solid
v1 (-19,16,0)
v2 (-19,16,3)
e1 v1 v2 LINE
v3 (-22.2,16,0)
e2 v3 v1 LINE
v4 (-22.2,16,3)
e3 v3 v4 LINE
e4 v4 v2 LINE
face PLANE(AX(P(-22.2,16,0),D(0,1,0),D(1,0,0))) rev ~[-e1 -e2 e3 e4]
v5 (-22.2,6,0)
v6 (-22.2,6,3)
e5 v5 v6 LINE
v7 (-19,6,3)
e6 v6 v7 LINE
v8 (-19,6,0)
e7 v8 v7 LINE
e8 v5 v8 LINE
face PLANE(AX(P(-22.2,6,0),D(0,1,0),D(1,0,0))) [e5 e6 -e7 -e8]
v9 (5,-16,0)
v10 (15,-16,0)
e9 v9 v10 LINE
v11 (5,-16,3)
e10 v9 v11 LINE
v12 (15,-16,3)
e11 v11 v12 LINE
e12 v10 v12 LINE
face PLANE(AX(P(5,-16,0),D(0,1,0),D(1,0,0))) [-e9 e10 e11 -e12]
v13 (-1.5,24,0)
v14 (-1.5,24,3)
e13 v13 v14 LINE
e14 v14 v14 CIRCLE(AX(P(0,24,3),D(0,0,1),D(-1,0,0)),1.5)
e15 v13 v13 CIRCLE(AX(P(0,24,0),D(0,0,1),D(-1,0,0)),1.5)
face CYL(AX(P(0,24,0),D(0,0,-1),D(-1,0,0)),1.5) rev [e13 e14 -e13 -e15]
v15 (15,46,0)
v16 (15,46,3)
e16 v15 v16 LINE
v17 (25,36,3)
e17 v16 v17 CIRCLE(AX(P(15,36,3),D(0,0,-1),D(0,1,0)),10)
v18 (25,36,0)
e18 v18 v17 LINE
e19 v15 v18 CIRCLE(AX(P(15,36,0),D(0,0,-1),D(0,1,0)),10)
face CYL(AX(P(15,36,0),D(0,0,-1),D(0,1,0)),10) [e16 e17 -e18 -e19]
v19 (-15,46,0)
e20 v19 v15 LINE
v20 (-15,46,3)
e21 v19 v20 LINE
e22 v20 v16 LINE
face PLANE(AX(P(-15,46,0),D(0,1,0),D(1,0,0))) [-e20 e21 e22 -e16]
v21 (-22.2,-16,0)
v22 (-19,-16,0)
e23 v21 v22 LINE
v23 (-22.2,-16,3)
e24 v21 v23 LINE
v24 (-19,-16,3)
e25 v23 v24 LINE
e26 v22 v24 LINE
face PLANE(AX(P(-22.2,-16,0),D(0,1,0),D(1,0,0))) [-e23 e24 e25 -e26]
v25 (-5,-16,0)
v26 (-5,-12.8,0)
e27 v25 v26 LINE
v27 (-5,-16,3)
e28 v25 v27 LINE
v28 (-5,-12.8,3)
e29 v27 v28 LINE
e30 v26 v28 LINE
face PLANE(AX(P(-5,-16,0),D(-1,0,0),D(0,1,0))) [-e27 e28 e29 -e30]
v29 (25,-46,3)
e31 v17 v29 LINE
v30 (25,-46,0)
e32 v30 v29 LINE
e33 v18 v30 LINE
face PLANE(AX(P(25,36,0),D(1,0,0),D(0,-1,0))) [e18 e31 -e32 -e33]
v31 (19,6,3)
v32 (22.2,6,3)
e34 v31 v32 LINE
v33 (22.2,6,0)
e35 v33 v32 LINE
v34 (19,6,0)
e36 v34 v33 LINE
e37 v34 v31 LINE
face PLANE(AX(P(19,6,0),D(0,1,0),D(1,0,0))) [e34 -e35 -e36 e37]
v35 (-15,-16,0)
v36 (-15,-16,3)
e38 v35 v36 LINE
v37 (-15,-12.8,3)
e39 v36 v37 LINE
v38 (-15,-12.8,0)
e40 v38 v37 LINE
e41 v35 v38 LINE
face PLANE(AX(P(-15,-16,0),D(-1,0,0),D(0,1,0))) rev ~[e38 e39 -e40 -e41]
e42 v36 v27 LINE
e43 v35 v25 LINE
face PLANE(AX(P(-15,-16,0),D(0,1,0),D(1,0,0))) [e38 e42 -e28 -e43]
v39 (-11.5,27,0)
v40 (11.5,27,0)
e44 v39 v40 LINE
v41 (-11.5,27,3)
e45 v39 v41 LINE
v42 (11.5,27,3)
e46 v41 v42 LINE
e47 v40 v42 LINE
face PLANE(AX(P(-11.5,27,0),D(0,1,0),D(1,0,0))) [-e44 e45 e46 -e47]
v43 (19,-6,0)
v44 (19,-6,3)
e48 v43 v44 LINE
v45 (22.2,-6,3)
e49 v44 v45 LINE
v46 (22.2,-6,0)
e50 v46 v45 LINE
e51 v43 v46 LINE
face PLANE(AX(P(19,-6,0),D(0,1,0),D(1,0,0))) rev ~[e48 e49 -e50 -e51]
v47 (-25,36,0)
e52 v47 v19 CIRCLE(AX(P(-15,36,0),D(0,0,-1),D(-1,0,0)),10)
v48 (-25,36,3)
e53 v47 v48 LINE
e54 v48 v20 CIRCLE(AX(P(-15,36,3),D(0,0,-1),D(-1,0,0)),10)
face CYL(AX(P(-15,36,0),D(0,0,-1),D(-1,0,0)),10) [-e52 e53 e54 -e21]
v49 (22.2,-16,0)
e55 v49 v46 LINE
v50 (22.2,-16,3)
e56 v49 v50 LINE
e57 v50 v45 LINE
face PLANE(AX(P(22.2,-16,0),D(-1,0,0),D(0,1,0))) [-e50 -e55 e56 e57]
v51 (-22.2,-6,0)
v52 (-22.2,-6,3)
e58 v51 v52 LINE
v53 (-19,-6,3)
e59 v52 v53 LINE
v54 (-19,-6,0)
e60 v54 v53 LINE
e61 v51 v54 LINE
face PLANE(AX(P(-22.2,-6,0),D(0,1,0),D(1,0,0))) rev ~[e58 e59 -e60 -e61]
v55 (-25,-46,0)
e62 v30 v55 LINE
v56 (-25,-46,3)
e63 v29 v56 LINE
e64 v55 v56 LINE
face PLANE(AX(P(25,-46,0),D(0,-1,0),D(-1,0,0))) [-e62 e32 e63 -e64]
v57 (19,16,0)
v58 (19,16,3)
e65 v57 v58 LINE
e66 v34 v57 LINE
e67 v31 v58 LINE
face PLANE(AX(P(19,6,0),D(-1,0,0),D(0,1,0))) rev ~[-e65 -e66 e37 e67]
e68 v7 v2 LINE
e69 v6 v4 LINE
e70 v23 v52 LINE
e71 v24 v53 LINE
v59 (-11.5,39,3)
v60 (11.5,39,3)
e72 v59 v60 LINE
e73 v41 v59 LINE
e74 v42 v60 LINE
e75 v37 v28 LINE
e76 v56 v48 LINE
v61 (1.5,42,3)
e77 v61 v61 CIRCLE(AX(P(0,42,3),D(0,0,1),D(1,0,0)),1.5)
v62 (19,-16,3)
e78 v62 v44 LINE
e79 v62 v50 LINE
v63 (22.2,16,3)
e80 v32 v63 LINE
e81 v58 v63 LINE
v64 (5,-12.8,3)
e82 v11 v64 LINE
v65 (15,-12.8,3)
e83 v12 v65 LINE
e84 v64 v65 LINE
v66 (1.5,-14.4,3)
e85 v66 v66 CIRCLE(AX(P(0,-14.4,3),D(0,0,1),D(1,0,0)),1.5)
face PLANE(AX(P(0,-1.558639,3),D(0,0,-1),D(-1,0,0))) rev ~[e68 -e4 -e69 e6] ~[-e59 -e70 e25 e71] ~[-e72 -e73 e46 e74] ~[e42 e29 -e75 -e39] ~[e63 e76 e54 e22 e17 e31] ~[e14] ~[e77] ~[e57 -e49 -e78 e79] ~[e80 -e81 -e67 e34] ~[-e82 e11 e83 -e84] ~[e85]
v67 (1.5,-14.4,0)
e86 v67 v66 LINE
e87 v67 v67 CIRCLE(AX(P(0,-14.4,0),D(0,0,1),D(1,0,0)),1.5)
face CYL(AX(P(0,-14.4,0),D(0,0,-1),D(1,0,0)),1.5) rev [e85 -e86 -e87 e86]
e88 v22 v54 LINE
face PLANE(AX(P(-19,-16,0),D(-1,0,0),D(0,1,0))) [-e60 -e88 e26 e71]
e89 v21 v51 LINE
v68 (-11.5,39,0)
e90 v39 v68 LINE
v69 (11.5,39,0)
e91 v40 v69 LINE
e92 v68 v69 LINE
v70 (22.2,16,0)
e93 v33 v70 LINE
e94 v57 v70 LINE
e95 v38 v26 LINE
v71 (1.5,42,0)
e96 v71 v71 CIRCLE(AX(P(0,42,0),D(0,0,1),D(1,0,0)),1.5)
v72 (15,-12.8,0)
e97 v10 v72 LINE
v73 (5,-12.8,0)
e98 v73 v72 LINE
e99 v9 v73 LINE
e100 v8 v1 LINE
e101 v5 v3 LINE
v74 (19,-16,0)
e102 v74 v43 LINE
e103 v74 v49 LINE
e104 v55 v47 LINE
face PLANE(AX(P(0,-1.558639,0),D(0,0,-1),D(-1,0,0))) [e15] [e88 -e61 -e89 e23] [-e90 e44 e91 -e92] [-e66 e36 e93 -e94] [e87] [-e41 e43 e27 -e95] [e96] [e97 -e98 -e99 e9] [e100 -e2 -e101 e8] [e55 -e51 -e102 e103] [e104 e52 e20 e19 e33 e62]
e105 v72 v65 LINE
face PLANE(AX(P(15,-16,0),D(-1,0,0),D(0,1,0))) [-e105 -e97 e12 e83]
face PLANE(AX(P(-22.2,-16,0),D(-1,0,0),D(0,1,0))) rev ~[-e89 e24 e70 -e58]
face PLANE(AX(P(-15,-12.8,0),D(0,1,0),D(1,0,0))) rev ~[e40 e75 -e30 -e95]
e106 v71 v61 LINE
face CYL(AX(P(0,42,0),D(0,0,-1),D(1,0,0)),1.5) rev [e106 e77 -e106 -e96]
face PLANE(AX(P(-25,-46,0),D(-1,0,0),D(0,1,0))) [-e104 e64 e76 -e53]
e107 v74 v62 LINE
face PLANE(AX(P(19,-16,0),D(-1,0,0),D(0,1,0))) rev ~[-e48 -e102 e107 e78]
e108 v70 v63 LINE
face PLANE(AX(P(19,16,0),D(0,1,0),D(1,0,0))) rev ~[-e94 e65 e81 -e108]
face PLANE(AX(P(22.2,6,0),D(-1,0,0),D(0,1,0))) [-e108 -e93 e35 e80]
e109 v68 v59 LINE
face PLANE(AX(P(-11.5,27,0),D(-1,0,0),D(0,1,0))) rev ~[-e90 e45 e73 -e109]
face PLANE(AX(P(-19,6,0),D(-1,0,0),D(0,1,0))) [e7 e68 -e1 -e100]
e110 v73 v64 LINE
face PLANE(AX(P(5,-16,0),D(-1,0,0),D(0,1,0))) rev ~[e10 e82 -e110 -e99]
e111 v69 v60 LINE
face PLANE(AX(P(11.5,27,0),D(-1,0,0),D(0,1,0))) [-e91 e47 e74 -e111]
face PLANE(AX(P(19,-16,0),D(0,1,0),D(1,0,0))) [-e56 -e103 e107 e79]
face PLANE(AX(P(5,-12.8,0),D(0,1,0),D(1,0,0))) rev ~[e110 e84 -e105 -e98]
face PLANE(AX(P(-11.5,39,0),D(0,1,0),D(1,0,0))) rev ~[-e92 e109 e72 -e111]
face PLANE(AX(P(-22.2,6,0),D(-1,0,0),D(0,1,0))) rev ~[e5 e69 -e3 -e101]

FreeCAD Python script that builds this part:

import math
import FreeCAD as App
import Part
import Sketcher
from FreeCAD import Vector
Q = App.Units.Quantity


def add_polygon(sketch, points):
    """Adds a closed chain of lines whose ends are joined by coincident constraints."""
    first, n = sketch.GeometryCount, len(points)
    for a, b in zip(points, points[1:] + points[:1]):
        sketch.addGeometry(Part.LineSegment(App.Vector(*a, 0), App.Vector(*b, 0)), False)
    for i in range(n):
        sketch.addConstraint(Sketcher.Constraint("Coincident", first + i, 2, first + (i + 1) % n, 1))

doc = App.newDocument("Part")
params = doc.addObject("Spreadsheet::Sheet", "Params")
for row, (alias, value) in enumerate([
    ("sketch1_diameter", "3 mm"),
    ("sketch1_radius", "10 mm"),
    ("sketch1_width", "50 mm"),
    ("sketch1_width2", "10 mm"),
    ("sketch1_width3", "23 mm"),
    ("pad1_length", "3 mm"),
], start=1):
    params.set(f"A{row}", alias)
    params.set(f"B{row}", "=" + value)
    params.setAlias(f"B{row}", alias)

body = doc.addObject("PartDesign::Body", "Body")

sketch1 = doc.addObject("Sketcher::SketchObject", "Sketch")
body.addObject(sketch1)
sketch1.AttachmentSupport = (doc.XY_Plane, [""])
sketch1.MapMode = "FlatFace"
sketch1.addGeometry(Part.LineSegment(Vector(-25, -46, 0), Vector(25, -46, 0)), False)
sketch1.addGeometry(Part.LineSegment(Vector(25, -46, 0), Vector(25, 36, 0)), False)
sketch1.addGeometry(Part.ArcOfCircle(Part.Circle(Vector(15, 36, 0), Vector(0, 0, 1), 10), math.radians(0), math.radians(90)), False)
sketch1.addGeometry(Part.LineSegment(Vector(15, 46, 0), Vector(-15, 46, 0)), False)
sketch1.addGeometry(Part.ArcOfCircle(Part.Circle(Vector(-15, 36, 0), Vector(0, 0, 1), 10), math.radians(90), math.radians(180)), False)
sketch1.addGeometry(Part.LineSegment(Vector(-25, 36, 0), Vector(-25, -46, 0)), False)
add_polygon(sketch1, [(19, -16), (19, -6), (22.2, -6), (22.2, -16)])
add_polygon(sketch1, [(5, -16), (5, -12.8), (15, -12.8), (15, -16)])
sketch1.addGeometry(Part.Circle(Vector(0, -14.4, 0), Vector(0, 0, 1), 1.5), False)
add_polygon(sketch1, [(19, 6), (19, 16), (22.2, 16), (22.2, 6)])
add_polygon(sketch1, [(-15, -16), (-15, -12.8), (-5, -12.8), (-5, -16)])
add_polygon(sketch1, [(-22.2, -16), (-22.2, -6), (-19, -6), (-19, -16)])
add_polygon(sketch1, [(-22.2, 6), (-22.2, 16), (-19, 16), (-19, 6)])
sketch1.addGeometry(Part.Circle(Vector(0, 24, 0), Vector(0, 0, 1), 1.5), False)
add_polygon(sketch1, [(-11.5, 27), (-11.5, 39), (11.5, 39), (11.5, 27)])
sketch1.addGeometry(Part.Circle(Vector(0, 42, 0), Vector(0, 0, 1), 1.5), False)
sketch1.addConstraint([
    Sketcher.Constraint("Coincident", 0, 2, 1, 1),
    Sketcher.Constraint("Tangent", 1, 2, 2, 1),
    Sketcher.Constraint("Tangent", 2, 2, 3, 1),
    Sketcher.Constraint("Tangent", 3, 2, 4, 1),
    Sketcher.Constraint("Tangent", 4, 2, 5, 1),
    Sketcher.Constraint("Coincident", 5, 2, 0, 1),
    Sketcher.Constraint("Horizontal", 0),
    Sketcher.Constraint("Vertical", 1),
    Sketcher.Constraint("Horizontal", 3),
    Sketcher.Constraint("Vertical", 5),
    Sketcher.Constraint("Vertical", 6),
    Sketcher.Constraint("Horizontal", 7),
    Sketcher.Constraint("Vertical", 8),
    Sketcher.Constraint("Horizontal", 9),
    Sketcher.Constraint("Vertical", 10),
    Sketcher.Constraint("Horizontal", 11),
    Sketcher.Constraint("Vertical", 12),
    Sketcher.Constraint("Horizontal", 13),
    Sketcher.Constraint("Vertical", 15),
    Sketcher.Constraint("Horizontal", 16),
    Sketcher.Constraint("Vertical", 17),
    Sketcher.Constraint("Horizontal", 18),
    Sketcher.Constraint("Vertical", 19),
    Sketcher.Constraint("Horizontal", 20),
    Sketcher.Constraint("Vertical", 21),
    Sketcher.Constraint("Horizontal", 22),
    Sketcher.Constraint("Vertical", 23),
    Sketcher.Constraint("Horizontal", 24),
    Sketcher.Constraint("Vertical", 25),
    Sketcher.Constraint("Horizontal", 26),
    Sketcher.Constraint("Vertical", 27),
    Sketcher.Constraint("Horizontal", 28),
    Sketcher.Constraint("Vertical", 29),
    Sketcher.Constraint("Horizontal", 30),
    Sketcher.Constraint("Vertical", 32),
    Sketcher.Constraint("Horizontal", 33),
    Sketcher.Constraint("Vertical", 34),
    Sketcher.Constraint("Horizontal", 35),
    Sketcher.Constraint("Equal", 2, 4),
    Sketcher.Constraint("Equal", 14, 31),
    Sketcher.Constraint("Equal", 31, 36),
    Sketcher.Constraint("Symmetric", 17, 2, 23, 2, -1, 1),
    Sketcher.Constraint("Symmetric", 15, 2, 25, 2, -1, 1),
    Sketcher.Constraint("Symmetric", 8, 2, 27, 2, -1, 1),
    Sketcher.Constraint("Symmetric", 6, 2, 29, 2, -1, 1),
    Sketcher.Constraint("Symmetric", 11, 2, 19, 2, -2),
    Sketcher.Constraint("Symmetric", 13, 2, 21, 2, -2),
    Sketcher.Constraint("Symmetric", 7, 2, 23, 2, -2),
    Sketcher.Constraint("Symmetric", 9, 2, 25, 2, -2),
    Sketcher.Constraint("PointOnObject", 14, 3, -2),
    Sketcher.Constraint("PointOnObject", 31, 3, -2),
    Sketcher.Constraint("PointOnObject", 36, 3, -2),
    Sketcher.Constraint("Horizontal", 9, 2, 12, 2),
    Sketcher.Constraint("Vertical", 2, 2, 11, 2),
    Sketcher.Constraint("Vertical", 3, 2, 19, 2),
    Sketcher.Constraint("Equal", 22, 6),
    Sketcher.Constraint("Equal", 30, 10),
    Sketcher.Constraint("Diameter", 14, Q("3 mm")),
    Sketcher.Constraint("Radius", 2, Q("10 mm")),
    Sketcher.Constraint("DistanceX", 0, 1, 0, 2, Q("50 mm")),
    Sketcher.Constraint("DistanceX", 11, 1, 11, 2, Q("10 mm")),
    Sketcher.Constraint("DistanceX", 33, 1, 33, 2, Q("23 mm")),
    Sketcher.Constraint("DistanceY", 1, 1, 1, 2, Q("82 mm")),
    Sketcher.Constraint("DistanceY", 32, 1, 32, 2, Q("12 mm")),
    Sketcher.Constraint("DistanceX", 7, 1, 7, 2, Q("3.2 mm")),
    Sketcher.Constraint("DistanceY", -1, 1, 2, 3, Q("36 mm")),
    Sketcher.Constraint("DistanceY", -1, 1, 31, 3, Q("24 mm")),
    Sketcher.Constraint("DistanceY", -1, 1, 36, 3, Q("42 mm")),
    Sketcher.Constraint("DistanceX", -1, 1, 6, 2, Q("19 mm")),
    Sketcher.Constraint("DistanceY", 6, 2, -1, 1, Q("6 mm")),
    Sketcher.Constraint("DistanceY", -1, 1, 32, 2, Q("39 mm")),
    Sketcher.Constraint("DistanceY", 14, 3, -1, 1, Q("14.4 mm")),
    Sketcher.Constraint("DistanceX", 32, 2, -1, 1, Q("11.5 mm")),
])
sketch1.setExpression("Constraints[85]", "Params.sketch1_diameter")
sketch1.setExpression("Constraints[86]", "Params.sketch1_radius")
sketch1.setExpression("Constraints[87]", "Params.sketch1_width")
sketch1.setExpression("Constraints[88]", "Params.sketch1_width2")
sketch1.setExpression("Constraints[89]", "Params.sketch1_width3")
pad1 = doc.addObject("PartDesign::Pad", "Pad")
body.addObject(pad1)
pad1.Profile = sketch1
pad1.setExpression("Length", "Params.pad1_length")

doc.recompute()
